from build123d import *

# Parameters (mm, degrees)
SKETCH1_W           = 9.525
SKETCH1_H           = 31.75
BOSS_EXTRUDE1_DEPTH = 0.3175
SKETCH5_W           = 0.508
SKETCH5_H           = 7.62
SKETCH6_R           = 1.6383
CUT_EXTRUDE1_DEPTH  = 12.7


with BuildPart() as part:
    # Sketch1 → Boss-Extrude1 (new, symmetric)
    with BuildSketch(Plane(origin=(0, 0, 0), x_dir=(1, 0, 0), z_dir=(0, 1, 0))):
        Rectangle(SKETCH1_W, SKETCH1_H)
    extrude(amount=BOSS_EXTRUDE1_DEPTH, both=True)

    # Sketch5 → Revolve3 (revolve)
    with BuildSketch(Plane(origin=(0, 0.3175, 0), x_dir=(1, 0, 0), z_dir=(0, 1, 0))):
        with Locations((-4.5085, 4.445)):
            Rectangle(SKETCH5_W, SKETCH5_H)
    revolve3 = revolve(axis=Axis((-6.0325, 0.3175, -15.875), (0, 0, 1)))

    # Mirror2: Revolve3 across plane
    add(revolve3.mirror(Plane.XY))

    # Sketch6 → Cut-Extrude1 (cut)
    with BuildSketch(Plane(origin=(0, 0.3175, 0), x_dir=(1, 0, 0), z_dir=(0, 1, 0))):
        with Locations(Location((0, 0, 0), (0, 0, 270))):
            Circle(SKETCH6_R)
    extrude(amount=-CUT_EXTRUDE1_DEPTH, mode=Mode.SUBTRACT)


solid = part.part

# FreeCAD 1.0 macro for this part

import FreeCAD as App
import Part
import Sketcher

V = App.Vector
Q = App.Units.Quantity


def add_polygon(sketch, points):
    """Adds a closed chain of lines whose ends are joined by coincident constraints."""
    first, n = sketch.GeometryCount, len(points)
    for a, b in zip(points, points[1:] + points[:1]):
        sketch.addGeometry(Part.LineSegment(App.Vector(*a, 0), App.Vector(*b, 0)), False)
    for i in range(n):
        sketch.addConstraint(Sketcher.Constraint("Coincident", first + i, 2, first + (i + 1) % n, 1))

doc = App.newDocument("Part")
body = doc.addObject("PartDesign::Body", "Body")

sketch1 = body.newObject("Sketcher::SketchObject", "Sketch")
sketch1.AttachmentSupport = (doc.getObject("XZ_Plane"), [""])
sketch1.MapMode = "FlatFace"
add_polygon(sketch1, [(-4.7625, -15.875), (-4.7625, 15.875), (4.7625, 15.875), (4.7625, -15.875)])
sketch1.addConstraint(Sketcher.Constraint("Vertical", 0))
sketch1.addConstraint(Sketcher.Constraint("Horizontal", 1))
sketch1.addConstraint(Sketcher.Constraint("Vertical", 2))
sketch1.addConstraint(Sketcher.Constraint("Horizontal", 3))
sketch1.addConstraint(Sketcher.Constraint("Symmetric", 0, 2, 2, 2, -1, 1))
sketch1.addConstraint(Sketcher.Constraint("DistanceY", 0, 1, 0, 2, Q("1.25 in")))
sketch1.addConstraint(Sketcher.Constraint("DistanceX", 1, 1, 1, 2, Q("0.375 in")))
pad1 = body.newObject("PartDesign::Pad", "Pad")
pad1.Profile = sketch1
pad1.Length = Q("0.025 in")
pad1.Midplane = True

sketch2 = body.newObject("Sketcher::SketchObject", "Sketch001")
sketch2.AttachmentSupport = (doc.getObject("XZ_Plane"), [""])
sketch2.MapMode = "FlatFace"
sketch2.AttachmentOffset = App.Placement(V(0, 0, -0.0125 * 25.4), App.Rotation())
add_polygon(sketch2, [(-4.7625, -8.255), (-4.7625, -0.635), (-4.2545, -0.635), (-4.2545, -8.255)])
sketch2.addGeometry(Part.LineSegment(V(-6.0325, -8.255, 0), V(-6.0325, -0.635, 0)), True)
sketch2.addConstraint(Sketcher.Constraint("Vertical", 0))
sketch2.addConstraint(Sketcher.Constraint("Horizontal", 1))
sketch2.addConstraint(Sketcher.Constraint("Vertical", 2))
sketch2.addConstraint(Sketcher.Constraint("Horizontal", 3))
sketch2.addConstraint(Sketcher.Constraint("Vertical", 4))
sketch2.addConstraint(Sketcher.Constraint("Horizontal", 3, 2, 4, 1))
sketch2.addConstraint(Sketcher.Constraint("Horizontal", 1, 2, 4, 2))
sketch2.addConstraint(Sketcher.Constraint("DistanceY", 0, 1, 0, 2, Q("0.3 in")))
sketch2.addConstraint(Sketcher.Constraint("DistanceX", 1, 1, 1, 2, Q("0.02 in")))
sketch2.addConstraint(Sketcher.Constraint("DistanceX", 4, 1, 3, 2, Q("0.05 in")))
sketch2.addConstraint(Sketcher.Constraint("DistanceX", 0, 2, -1, 1, Q("0.1875 in")))
sketch2.addConstraint(Sketcher.Constraint("DistanceY", 0, 2, -1, 1, Q("0.025 in")))
revolution = body.newObject("PartDesign::Revolution", "Revolution")
revolution.Profile = sketch2
revolution.ReferenceAxis = (sketch2, ["Axis0"])
revolution.Angle = 360
doc.recompute()

mirrored = body.newObject("PartDesign::Mirrored", "Mirrored")
mirrored.Originals = [revolution]
mirrored.MirrorPlane = (doc.getObject("XY_Plane"), [""])
body.Tip = mirrored

sketch3 = body.newObject("Sketcher::SketchObject", "Sketch002")
sketch3.AttachmentSupport = (doc.getObject("XZ_Plane"), [""])
sketch3.MapMode = "FlatFace"
sketch3.AttachmentOffset = App.Placement(V(0, 0, -0.0125 * 25.4), App.Rotation())
sketch3.addGeometry(Part.Circle(V(0, 0, 0), V(0, 0, 1), 1.6383), False)
sketch3.addConstraint(Sketcher.Constraint("Coincident", 0, 3, -1, 1))
sketch3.addConstraint(Sketcher.Constraint("Diameter", 0, Q("0.129 in")))
pocket1 = body.newObject("PartDesign::Pocket", "Pocket")
pocket1.Profile = sketch3
pocket1.Length = Q("0.5 in")
pocket1.Reversed = True

doc.recompute()
